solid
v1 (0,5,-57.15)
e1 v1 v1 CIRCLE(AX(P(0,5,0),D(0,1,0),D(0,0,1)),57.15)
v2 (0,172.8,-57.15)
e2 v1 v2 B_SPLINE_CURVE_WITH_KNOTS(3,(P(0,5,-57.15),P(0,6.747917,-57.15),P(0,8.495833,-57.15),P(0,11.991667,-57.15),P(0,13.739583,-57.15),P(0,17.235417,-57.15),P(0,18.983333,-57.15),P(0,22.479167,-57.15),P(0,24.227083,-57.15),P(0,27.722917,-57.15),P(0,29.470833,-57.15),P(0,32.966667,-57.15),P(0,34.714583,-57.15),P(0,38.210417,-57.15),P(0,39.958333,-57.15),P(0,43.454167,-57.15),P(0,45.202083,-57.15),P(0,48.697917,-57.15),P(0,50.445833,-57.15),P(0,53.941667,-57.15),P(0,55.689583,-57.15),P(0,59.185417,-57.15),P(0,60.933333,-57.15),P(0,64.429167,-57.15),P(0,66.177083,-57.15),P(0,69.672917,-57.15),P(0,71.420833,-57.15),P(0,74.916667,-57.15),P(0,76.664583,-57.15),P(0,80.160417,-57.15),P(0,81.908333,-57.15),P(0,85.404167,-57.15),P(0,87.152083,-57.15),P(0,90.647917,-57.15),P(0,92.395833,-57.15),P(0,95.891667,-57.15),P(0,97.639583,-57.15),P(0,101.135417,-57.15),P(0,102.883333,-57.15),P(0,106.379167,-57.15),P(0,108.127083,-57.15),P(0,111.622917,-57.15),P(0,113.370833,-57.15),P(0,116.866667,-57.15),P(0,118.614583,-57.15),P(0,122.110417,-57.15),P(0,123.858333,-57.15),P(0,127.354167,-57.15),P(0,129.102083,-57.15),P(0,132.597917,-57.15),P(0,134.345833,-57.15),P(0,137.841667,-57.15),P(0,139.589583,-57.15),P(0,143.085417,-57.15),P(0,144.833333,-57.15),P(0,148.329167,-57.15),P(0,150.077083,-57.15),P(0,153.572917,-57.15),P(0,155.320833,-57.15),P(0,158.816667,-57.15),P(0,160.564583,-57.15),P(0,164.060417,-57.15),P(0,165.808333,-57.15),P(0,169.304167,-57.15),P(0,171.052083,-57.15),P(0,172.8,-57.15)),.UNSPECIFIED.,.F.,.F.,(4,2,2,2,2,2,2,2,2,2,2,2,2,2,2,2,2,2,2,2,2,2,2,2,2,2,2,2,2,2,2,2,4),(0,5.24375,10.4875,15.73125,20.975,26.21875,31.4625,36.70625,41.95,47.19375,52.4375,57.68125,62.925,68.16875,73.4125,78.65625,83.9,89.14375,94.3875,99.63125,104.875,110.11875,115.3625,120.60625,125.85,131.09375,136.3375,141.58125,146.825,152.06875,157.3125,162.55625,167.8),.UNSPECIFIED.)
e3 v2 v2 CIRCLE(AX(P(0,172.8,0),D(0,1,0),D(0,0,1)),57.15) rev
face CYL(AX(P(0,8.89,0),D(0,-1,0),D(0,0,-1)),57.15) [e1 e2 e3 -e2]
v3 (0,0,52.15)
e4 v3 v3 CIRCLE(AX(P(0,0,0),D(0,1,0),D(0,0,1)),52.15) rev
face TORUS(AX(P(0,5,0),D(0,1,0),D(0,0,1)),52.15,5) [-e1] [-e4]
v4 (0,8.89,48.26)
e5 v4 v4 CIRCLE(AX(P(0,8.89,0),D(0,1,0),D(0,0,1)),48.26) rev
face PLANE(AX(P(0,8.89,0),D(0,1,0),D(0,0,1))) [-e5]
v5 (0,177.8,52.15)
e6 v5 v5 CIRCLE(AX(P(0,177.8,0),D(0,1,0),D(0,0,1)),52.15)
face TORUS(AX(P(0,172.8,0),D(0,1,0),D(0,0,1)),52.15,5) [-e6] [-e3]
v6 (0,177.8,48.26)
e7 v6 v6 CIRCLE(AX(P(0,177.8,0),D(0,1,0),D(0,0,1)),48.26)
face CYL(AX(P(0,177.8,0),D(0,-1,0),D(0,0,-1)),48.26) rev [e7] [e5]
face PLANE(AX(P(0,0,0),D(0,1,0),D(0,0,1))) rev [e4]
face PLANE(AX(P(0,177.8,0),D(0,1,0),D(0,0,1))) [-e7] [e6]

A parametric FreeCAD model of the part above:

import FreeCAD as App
import Part
import Sketcher
from FreeCAD import Vector
Q = App.Units.Quantity


def edges_at(feature, points):
    """Names of the edges that pass closest to the given points."""
    edges = feature.Shape.Edges
    near = lambda p: min(range(len(edges)), key=lambda i: edges[i].distToShape(Part.Vertex(*p))[0])
    return sorted({f"Edge{near(p) + 1}" for p in points})

doc = App.newDocument("Part")
body = doc.addObject("PartDesign::Body", "Body")

# Sketch on XZ plane
sketch1 = body.newObject("Sketcher::SketchObject", "Sketch")
sketch1.AttachmentSupport = (doc.getObject("XZ_Plane"), [""])
sketch1.MapMode = "FlatFace"
sketch1.addGeometry(Part.Circle(Vector(0, 0, 0), Vector(0, 0, 1), 57), False)
sketch1.addConstraint(Sketcher.Constraint("Coincident", 0, 3, -1, 1))
sketch1.addConstraint(Sketcher.Constraint("Diameter", 0, Q("4.5 in")))
pad1 = body.newObject("PartDesign::Pad", "Pad")
pad1.Profile = sketch1
pad1.Length = Q("0.35 in")
pad1.Reversed = True

# Sketch on XZ plane
sketch2 = body.newObject("Sketcher::SketchObject", "Sketch001")
sketch2.AttachmentSupport = (doc.getObject("XZ_Plane"), [""])
sketch2.MapMode = "FlatFace"
sketch2.addGeometry(Part.Circle(Vector(0, 0, 0), Vector(0, 0, 1), 57), False)
sketch2.addGeometry(Part.Circle(Vector(0, 0, 0), Vector(0, 0, 1), 48), False)
sketch2.addConstraint(Sketcher.Constraint("Coincident", 0, 3, -1, 1))
sketch2.addConstraint(Sketcher.Constraint("Coincident", 1, 3, -1, 1))
sketch2.addConstraint(Sketcher.Constraint("Diameter", 0, Q("4.5 in")))
sketch2.addConstraint(Sketcher.Constraint("Diameter", 1, Q("3.8 in")))
pad2 = body.newObject("PartDesign::Pad", "Pad001")
pad2.Profile = sketch2
pad2.Length = Q("7 in")
pad2.Reversed = True
doc.recompute()

fillet = body.newObject("PartDesign::Fillet", "Fillet")
fillet.Base = (pad2, edges_at(pad2, [(0, 0, 57.15), (0, 177.8, 57.15)]))
fillet.Radius = 5

doc.recompute()
